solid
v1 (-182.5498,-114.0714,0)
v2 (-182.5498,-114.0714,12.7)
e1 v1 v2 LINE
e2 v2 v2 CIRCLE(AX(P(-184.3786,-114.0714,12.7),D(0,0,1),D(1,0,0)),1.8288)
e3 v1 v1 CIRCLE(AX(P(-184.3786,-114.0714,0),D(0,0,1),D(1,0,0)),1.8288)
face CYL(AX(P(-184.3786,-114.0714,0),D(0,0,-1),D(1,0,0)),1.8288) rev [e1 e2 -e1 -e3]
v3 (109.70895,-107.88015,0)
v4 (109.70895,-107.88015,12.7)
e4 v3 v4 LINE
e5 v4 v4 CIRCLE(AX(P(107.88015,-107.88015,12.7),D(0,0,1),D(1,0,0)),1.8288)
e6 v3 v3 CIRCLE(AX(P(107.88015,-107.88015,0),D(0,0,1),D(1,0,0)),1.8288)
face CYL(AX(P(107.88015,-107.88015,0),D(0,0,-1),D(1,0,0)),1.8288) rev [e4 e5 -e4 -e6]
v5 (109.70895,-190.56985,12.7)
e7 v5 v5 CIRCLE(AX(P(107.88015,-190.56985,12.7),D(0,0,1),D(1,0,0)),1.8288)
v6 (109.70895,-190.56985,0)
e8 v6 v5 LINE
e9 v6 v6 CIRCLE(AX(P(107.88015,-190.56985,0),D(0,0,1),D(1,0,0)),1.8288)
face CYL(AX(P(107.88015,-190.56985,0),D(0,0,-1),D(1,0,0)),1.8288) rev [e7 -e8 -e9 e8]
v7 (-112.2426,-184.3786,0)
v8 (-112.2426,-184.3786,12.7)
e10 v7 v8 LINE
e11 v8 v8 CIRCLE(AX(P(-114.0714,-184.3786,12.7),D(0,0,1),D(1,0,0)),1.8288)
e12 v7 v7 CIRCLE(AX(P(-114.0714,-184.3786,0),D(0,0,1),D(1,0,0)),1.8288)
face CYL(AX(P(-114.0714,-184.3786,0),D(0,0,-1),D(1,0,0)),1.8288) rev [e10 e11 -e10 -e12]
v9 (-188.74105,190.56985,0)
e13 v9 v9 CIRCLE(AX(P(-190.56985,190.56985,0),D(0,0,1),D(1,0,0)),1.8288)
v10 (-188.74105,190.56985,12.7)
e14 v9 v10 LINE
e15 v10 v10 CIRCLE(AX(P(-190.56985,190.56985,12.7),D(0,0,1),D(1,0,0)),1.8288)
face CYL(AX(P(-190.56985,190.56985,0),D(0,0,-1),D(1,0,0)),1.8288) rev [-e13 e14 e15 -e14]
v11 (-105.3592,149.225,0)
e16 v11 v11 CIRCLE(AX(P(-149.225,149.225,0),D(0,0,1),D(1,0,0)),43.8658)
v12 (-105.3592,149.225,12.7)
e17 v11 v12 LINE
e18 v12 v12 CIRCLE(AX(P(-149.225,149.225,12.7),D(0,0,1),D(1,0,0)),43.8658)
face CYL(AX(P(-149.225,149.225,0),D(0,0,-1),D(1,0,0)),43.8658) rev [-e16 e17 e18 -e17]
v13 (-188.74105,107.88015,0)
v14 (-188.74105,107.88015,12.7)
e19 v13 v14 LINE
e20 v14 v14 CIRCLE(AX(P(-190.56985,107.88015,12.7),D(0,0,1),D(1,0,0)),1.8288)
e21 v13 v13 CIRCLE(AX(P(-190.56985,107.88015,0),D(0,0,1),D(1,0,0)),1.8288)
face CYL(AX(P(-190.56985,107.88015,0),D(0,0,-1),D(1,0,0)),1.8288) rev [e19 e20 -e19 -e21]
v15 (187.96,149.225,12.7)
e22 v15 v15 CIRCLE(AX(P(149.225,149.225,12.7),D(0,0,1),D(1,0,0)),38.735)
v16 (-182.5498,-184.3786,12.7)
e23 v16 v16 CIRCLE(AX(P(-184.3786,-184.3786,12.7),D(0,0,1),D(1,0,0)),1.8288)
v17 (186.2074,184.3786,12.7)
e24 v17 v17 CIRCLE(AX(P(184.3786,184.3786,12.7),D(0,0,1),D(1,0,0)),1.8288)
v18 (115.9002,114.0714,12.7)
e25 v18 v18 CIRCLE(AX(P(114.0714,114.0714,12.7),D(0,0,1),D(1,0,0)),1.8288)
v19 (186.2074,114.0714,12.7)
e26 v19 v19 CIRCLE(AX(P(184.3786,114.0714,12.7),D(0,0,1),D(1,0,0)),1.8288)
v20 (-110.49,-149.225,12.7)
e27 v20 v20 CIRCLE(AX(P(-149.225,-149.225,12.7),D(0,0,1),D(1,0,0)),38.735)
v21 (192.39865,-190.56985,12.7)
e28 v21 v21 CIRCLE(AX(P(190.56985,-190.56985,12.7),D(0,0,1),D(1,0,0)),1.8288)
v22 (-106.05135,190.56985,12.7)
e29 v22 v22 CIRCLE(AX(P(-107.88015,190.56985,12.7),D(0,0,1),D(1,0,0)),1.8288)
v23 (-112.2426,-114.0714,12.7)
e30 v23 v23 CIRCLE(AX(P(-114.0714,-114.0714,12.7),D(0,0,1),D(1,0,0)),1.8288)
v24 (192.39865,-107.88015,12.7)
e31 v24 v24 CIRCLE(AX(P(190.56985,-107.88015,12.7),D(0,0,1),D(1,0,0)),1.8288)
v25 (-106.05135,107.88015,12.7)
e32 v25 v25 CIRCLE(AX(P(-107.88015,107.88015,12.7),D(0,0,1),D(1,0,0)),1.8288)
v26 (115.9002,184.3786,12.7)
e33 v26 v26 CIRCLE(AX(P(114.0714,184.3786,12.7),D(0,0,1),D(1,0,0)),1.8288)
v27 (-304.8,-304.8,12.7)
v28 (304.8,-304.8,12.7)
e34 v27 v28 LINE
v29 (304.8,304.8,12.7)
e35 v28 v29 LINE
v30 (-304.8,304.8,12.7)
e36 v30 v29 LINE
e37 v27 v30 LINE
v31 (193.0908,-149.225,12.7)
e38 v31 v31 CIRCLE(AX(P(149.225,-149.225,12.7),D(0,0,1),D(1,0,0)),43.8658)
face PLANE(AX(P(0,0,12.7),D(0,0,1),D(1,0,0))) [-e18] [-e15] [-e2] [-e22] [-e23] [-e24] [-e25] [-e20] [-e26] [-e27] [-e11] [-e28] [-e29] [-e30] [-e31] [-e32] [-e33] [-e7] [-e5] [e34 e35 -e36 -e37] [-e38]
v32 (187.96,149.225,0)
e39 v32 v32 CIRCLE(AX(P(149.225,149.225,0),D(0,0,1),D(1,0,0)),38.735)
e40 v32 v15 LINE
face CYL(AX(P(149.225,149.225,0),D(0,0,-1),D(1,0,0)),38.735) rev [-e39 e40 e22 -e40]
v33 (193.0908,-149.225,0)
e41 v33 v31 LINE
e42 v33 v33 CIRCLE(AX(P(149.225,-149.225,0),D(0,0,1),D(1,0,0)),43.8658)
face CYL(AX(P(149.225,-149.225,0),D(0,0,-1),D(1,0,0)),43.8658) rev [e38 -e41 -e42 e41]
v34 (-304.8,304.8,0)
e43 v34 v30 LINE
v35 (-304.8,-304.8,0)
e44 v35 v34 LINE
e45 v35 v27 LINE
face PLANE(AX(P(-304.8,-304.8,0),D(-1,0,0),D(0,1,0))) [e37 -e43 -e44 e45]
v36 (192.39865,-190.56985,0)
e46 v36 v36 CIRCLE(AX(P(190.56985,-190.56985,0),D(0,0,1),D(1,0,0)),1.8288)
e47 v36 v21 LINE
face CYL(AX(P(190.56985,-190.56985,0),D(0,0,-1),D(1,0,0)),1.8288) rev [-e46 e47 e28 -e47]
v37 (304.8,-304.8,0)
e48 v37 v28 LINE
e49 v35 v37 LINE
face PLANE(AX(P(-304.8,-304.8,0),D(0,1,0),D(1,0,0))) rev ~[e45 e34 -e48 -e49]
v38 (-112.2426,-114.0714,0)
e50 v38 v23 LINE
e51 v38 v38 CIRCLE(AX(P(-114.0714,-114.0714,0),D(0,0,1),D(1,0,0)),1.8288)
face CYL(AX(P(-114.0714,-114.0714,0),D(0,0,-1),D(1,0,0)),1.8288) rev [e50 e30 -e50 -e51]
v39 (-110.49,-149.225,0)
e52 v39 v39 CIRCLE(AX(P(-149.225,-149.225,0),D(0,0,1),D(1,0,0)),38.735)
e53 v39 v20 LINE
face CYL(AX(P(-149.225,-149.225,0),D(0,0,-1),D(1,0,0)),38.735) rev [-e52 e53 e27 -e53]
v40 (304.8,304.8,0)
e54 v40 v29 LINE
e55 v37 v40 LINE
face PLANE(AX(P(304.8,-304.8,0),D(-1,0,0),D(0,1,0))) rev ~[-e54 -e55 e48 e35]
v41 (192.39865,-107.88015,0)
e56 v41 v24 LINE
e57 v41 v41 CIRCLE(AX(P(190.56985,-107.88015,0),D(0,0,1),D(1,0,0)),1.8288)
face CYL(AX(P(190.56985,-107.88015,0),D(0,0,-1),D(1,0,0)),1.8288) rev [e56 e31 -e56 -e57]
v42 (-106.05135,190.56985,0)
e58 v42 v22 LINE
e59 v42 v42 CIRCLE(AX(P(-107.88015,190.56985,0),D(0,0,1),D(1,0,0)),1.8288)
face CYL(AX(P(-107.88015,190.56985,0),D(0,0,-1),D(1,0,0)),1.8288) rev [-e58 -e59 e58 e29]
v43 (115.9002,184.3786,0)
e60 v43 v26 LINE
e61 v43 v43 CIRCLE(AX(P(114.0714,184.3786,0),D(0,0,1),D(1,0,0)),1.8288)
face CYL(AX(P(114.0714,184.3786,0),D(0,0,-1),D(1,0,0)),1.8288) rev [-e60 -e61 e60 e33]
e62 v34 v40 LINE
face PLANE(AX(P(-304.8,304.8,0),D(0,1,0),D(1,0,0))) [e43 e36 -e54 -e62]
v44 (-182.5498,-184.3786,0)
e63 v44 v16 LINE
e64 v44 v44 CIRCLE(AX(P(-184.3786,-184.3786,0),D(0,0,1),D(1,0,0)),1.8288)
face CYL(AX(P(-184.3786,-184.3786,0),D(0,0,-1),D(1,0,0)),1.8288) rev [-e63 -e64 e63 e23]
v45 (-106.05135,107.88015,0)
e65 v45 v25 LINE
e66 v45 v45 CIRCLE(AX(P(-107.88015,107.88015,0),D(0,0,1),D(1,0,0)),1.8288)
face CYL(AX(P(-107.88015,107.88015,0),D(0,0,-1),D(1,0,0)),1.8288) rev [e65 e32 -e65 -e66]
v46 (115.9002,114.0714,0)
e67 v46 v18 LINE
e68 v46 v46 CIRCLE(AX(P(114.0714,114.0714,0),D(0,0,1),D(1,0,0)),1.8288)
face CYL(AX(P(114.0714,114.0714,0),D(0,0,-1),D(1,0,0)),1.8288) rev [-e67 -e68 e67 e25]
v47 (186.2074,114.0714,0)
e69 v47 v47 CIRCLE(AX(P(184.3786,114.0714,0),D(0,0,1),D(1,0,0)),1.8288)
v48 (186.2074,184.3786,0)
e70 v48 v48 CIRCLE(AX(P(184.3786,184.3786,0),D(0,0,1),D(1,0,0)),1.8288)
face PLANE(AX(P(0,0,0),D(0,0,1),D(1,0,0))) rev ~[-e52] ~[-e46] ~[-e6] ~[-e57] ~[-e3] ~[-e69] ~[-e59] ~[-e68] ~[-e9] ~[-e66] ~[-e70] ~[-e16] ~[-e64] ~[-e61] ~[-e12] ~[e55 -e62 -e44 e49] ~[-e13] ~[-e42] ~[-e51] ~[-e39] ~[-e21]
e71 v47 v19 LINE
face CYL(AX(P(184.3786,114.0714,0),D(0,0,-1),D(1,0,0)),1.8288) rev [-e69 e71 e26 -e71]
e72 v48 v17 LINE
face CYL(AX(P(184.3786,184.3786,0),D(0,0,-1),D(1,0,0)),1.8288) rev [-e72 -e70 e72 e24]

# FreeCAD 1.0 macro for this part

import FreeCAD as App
import Part
import Sketcher
from FreeCAD import Vector
Q = App.Units.Quantity


def add_polygon(sketch, points):
    """Adds a closed chain of lines whose ends are joined by coincident constraints."""
    first, n = sketch.GeometryCount, len(points)
    for a, b in zip(points, points[1:] + points[:1]):
        sketch.addGeometry(Part.LineSegment(App.Vector(*a, 0), App.Vector(*b, 0)), False)
    for i in range(n):
        sketch.addConstraint(Sketcher.Constraint("Coincident", first + i, 2, first + (i + 1) % n, 1))

doc = App.newDocument("Part")
body = doc.addObject("PartDesign::Body", "Body")

sketch1 = body.newObject("Sketcher::SketchObject", "Sketch")
sketch1.AttachmentSupport = (doc.getObject("XY_Plane"), [""])
sketch1.MapMode = "FlatFace"
add_polygon(sketch1, [(-304.8, 304.8), (-304.8, -304.8), (304.8, -304.8), (304.8, 304.8)])
sketch1.addGeometry(Part.Circle(Vector(-184.4, -184.4, 0), Vector(0, 0, 1), 1.8), False)
sketch1.addGeometry(Part.Circle(Vector(-149.2, -149.2, 0), Vector(0, 0, 1), 38.7), False)
sketch1.addGeometry(Part.Circle(Vector(-114.1, -184.4, 0), Vector(0, 0, 1), 1.8), False)
sketch1.addGeometry(Part.Circle(Vector(-184.4, -114.1, 0), Vector(0, 0, 1), 1.8), False)
sketch1.addGeometry(Part.Circle(Vector(-114.1, -114.1, 0), Vector(0, 0, 1), 1.8), False)
sketch1.addGeometry(Part.Circle(Vector(107.9, -190.6, 0), Vector(0, 0, 1), 1.8), False)
sketch1.addGeometry(Part.Circle(Vector(190.6, -190.6, 0), Vector(0, 0, 1), 1.8), False)
sketch1.addGeometry(Part.Circle(Vector(149.2, -149.2, 0), Vector(0, 0, 1), 43.9), False)
sketch1.addGeometry(Part.Circle(Vector(107.9, -107.9, 0), Vector(0, 0, 1), 1.8), False)
sketch1.addGeometry(Part.Circle(Vector(190.6, -107.9, 0), Vector(0, 0, 1), 1.8), False)
sketch1.addGeometry(Part.Circle(Vector(-190.6, 107.9, 0), Vector(0, 0, 1), 1.8), False)
sketch1.addGeometry(Part.Circle(Vector(-107.9, 107.9, 0), Vector(0, 0, 1), 1.8), False)
sketch1.addGeometry(Part.Circle(Vector(-149.2, 149.2, 0), Vector(0, 0, 1), 43.9), False)
sketch1.addGeometry(Part.Circle(Vector(-190.6, 190.6, 0), Vector(0, 0, 1), 1.8), False)
sketch1.addGeometry(Part.Circle(Vector(-107.9, 190.6, 0), Vector(0, 0, 1), 1.8), False)
sketch1.addGeometry(Part.Circle(Vector(114.1, 114.1, 0), Vector(0, 0, 1), 1.8), False)
sketch1.addGeometry(Part.Circle(Vector(184.4, 114.1, 0), Vector(0, 0, 1), 1.8), False)
sketch1.addGeometry(Part.Circle(Vector(114.1, 184.4, 0), Vector(0, 0, 1), 1.8), False)
sketch1.addGeometry(Part.Circle(Vector(149.2, 149.2, 0), Vector(0, 0, 1), 38.7), False)
sketch1.addGeometry(Part.Circle(Vector(184.4, 184.4, 0), Vector(0, 0, 1), 1.8), False)
sketch1.addConstraint(Sketcher.Constraint("Vertical", 0))
sketch1.addConstraint(Sketcher.Constraint("Horizontal", 1))
sketch1.addConstraint(Sketcher.Constraint("Vertical", 2))
sketch1.addConstraint(Sketcher.Constraint("Horizontal", 3))
sketch1.addConstraint(Sketcher.Constraint("Equal", 4, 6))
sketch1.addConstraint(Sketcher.Constraint("Equal", 6, 7))
sketch1.addConstraint(Sketcher.Constraint("Equal", 7, 8))
sketch1.addConstraint(Sketcher.Constraint("Equal", 8, 9))
sketch1.addConstraint(Sketcher.Constraint("Equal", 9, 10))
sketch1.addConstraint(Sketcher.Constraint("Equal", 10, 12))
sketch1.addConstraint(Sketcher.Constraint("Equal", 12, 13))
sketch1.addConstraint(Sketcher.Constraint("Equal", 13, 14))
sketch1.addConstraint(Sketcher.Constraint("Equal", 14, 15))
sketch1.addConstraint(Sketcher.Constraint("Equal", 11, 16))
sketch1.addConstraint(Sketcher.Constraint("Equal", 15, 17))
sketch1.addConstraint(Sketcher.Constraint("Equal", 17, 18))
sketch1.addConstraint(Sketcher.Constraint("Equal", 18, 19))
sketch1.addConstraint(Sketcher.Constraint("Equal", 19, 20))
sketch1.addConstraint(Sketcher.Constraint("Equal", 20, 21))
sketch1.addConstraint(Sketcher.Constraint("Equal", 5, 22))
sketch1.addConstraint(Sketcher.Constraint("Equal", 21, 23))
sketch1.addConstraint(Sketcher.Constraint("Symmetric", 13, 3, 14, 3, -1, 1))
sketch1.addConstraint(Sketcher.Constraint("Symmetric", 12, 3, 15, 3, -1, 1))
sketch1.addConstraint(Sketcher.Constraint("Symmetric", 11, 3, 16, 3, -1, 1))
sketch1.addConstraint(Sketcher.Constraint("Symmetric", 10, 3, 17, 3, -1, 1))
sketch1.addConstraint(Sketcher.Constraint("Symmetric", 9, 3, 18, 3, -1, 1))
sketch1.addConstraint(Sketcher.Constraint("Symmetric", 8, 3, 19, 3, -1, 1))
sketch1.addConstraint(Sketcher.Constraint("Symmetric", 7, 3, 20, 3, -1, 1))
sketch1.addConstraint(Sketcher.Constraint("Symmetric", 6, 3, 21, 3, -1, 1))
sketch1.addConstraint(Sketcher.Constraint("Symmetric", 5, 3, 22, 3, -1, 1))
sketch1.addConstraint(Sketcher.Constraint("Symmetric", 4, 3, 23, 3, -1, 1))
sketch1.addConstraint(Sketcher.Constraint("Symmetric", 0, 2, 2, 2, -1, 1))
sketch1.addConstraint(Sketcher.Constraint("Symmetric", 5, 3, 11, 3, -2))
sketch1.addConstraint(Sketcher.Constraint("Horizontal", 4, 3, 6, 3))
sketch1.addConstraint(Sketcher.Constraint("Horizontal", 7, 3, 8, 3))
sketch1.addConstraint(Sketcher.Constraint("Horizontal", 9, 3, 10, 3))
sketch1.addConstraint(Sketcher.Constraint("Horizontal", 12, 3, 13, 3))
sketch1.addConstraint(Sketcher.Constraint("Vertical", 4, 3, 7, 3))
sketch1.addConstraint(Sketcher.Constraint("Vertical", 6, 3, 8, 3))
sketch1.addConstraint(Sketcher.Constraint("Vertical", 9, 3, 12, 3))
sketch1.addConstraint(Sketcher.Constraint("Vertical", 10, 3, 13, 3))
sketch1.addConstraint(Sketcher.Constraint("Equal", 3, 0))
sketch1.addConstraint(Sketcher.Constraint("Diameter", 5, Q("3.05 in")))
sketch1.addConstraint(Sketcher.Constraint("DistanceX", 1, 1, 1, 2, Q("24 in")))
sketch1.addConstraint(Sketcher.Constraint("Diameter", 4, Q("0.144 in")))
sketch1.addConstraint(Sketcher.Constraint("Diameter", 11, Q("3.454 in")))
sketch1.addConstraint(Sketcher.Constraint("DistanceX", 5, 3, 11, 3, Q("11.75 in")))
sketch1.addConstraint(Sketcher.Constraint("DistanceY", 5, 3, 16, 3, Q("11.75 in")))
sketch1.addConstraint(Sketcher.Constraint("DistanceX", 4, 3, -1, 1, Q("7.259 in")))
sketch1.addConstraint(Sketcher.Constraint("DistanceY", 4, 3, -1, 1, Q("7.259 in")))
sketch1.addConstraint(Sketcher.Constraint("DistanceX", 6, 3, -1, 1, Q("4.491 in")))
sketch1.addConstraint(Sketcher.Constraint("DistanceY", 7, 3, -1, 1, Q("4.491 in")))
sketch1.addConstraint(Sketcher.Constraint("DistanceX", 9, 3, 10, 3, Q("3.2555 in")))
sketch1.addConstraint(Sketcher.Constraint("DistanceY", 9, 3, 12, 3, Q("3.2555 in")))
sketch1.addConstraint(Sketcher.Constraint("DistanceX", -1, 1, 9, 3, Q("107.88015 mm")))
sketch1.addConstraint(Sketcher.Constraint("DistanceY", 9, 3, -1, 1, Q("190.56985 mm")))
pad1 = body.newObject("PartDesign::Pad", "Pad")
pad1.Profile = sketch1
pad1.Length = Q("0.5 in")

doc.recompute()
